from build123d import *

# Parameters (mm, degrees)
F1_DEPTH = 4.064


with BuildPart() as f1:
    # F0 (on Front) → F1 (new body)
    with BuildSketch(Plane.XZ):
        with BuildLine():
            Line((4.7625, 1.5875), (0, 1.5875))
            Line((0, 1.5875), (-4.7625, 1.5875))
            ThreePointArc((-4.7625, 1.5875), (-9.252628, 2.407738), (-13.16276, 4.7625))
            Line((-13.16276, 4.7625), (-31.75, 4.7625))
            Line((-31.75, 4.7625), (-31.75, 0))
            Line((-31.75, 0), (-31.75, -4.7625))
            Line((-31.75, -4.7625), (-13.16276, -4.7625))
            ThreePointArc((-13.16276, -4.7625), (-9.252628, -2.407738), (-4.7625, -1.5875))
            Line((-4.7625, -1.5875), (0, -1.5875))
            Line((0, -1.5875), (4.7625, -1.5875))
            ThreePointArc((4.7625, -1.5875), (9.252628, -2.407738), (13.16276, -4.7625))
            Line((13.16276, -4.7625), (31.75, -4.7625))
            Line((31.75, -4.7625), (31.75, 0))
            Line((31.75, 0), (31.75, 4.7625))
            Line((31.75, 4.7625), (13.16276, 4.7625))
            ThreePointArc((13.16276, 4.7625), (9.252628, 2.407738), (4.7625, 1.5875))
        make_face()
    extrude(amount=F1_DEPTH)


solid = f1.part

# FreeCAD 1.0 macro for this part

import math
import FreeCAD as App
import Part
import Sketcher
Q = App.Units.Quantity

doc = App.newDocument("Part")
body = doc.addObject("PartDesign::Body", "Body")

# Sketch on XZ plane
sketch1 = doc.addObject("Sketcher::SketchObject", "Sketch")
body.addObject(sketch1)
sketch1.AttachmentSupport = (doc.XZ_Plane, [""])
sketch1.MapMode = "FlatFace"
sketch1.addGeometry([
    Part.LineSegment(App.Vector(5, 2, 0), App.Vector(-5, 2, 0)),  # 0
    Part.ArcOfCircle(Part.Circle(App.Vector(-5, 14, 0), App.Vector(0, 0, 1), 13), math.radians(-131), math.radians(-90)),  # 1
    Part.LineSegment(App.Vector(-13, 5, 0), App.Vector(-32, 5, 0)),  # 2
    Part.LineSegment(App.Vector(-32, 5, 0), App.Vector(-32, -5, 0)),  # 3
    Part.LineSegment(App.Vector(-32, -5, 0), App.Vector(-13, -5, 0)),  # 4
    Part.ArcOfCircle(Part.Circle(App.Vector(-5, -14, 0), App.Vector(0, 0, 1), 13), math.radians(90), math.radians(131)),  # 5
    Part.LineSegment(App.Vector(-5, -2, 0), App.Vector(5, -2, 0)),  # 6
    Part.ArcOfCircle(Part.Circle(App.Vector(5, -14, 0), App.Vector(0, 0, 1), 13), math.radians(49), math.radians(90)),  # 7
    Part.LineSegment(App.Vector(13, -5, 0), App.Vector(32, -5, 0)),  # 8
    Part.LineSegment(App.Vector(32, -5, 0), App.Vector(32, 5, 0)),  # 9
    Part.LineSegment(App.Vector(32, 5, 0), App.Vector(13, 5, 0)),  # 10
    Part.ArcOfCircle(Part.Circle(App.Vector(5, 14, 0), App.Vector(0, 0, 1), 13), math.radians(-90), math.radians(-49)),  # 11
], False)
sketch1.addConstraint([
    Sketcher.Constraint("Tangent", 0, 2, 1, 2),
    Sketcher.Constraint("Coincident", 1, 1, 2, 1),
    Sketcher.Constraint("Coincident", 2, 2, 3, 1),
    Sketcher.Constraint("Coincident", 3, 2, 4, 1),
    Sketcher.Constraint("Coincident", 4, 2, 5, 2),
    Sketcher.Constraint("Tangent", 5, 1, 6, 1),
    Sketcher.Constraint("Tangent", 6, 2, 7, 2),
    Sketcher.Constraint("Coincident", 7, 1, 8, 1),
    Sketcher.Constraint("Coincident", 8, 2, 9, 1),
    Sketcher.Constraint("Coincident", 9, 2, 10, 1),
    Sketcher.Constraint("Coincident", 10, 2, 11, 2),
    Sketcher.Constraint("Tangent", 11, 1, 0, 1),
    Sketcher.Constraint("Horizontal", 0),
    Sketcher.Constraint("Horizontal", 2),
    Sketcher.Constraint("Vertical", 3),
    Sketcher.Constraint("Horizontal", 4),
    Sketcher.Constraint("Horizontal", 6),
    Sketcher.Constraint("Horizontal", 8),
    Sketcher.Constraint("Vertical", 9),
    Sketcher.Constraint("Horizontal", 10),
    Sketcher.Constraint("Equal", 1, 5),
    Sketcher.Constraint("Equal", 5, 7),
    Sketcher.Constraint("Equal", 7, 11),
    Sketcher.Constraint("Symmetric", 1, 3, 7, 3, -1, 1),
    Sketcher.Constraint("Symmetric", 2, 2, 8, 2, -1, 1),
    Sketcher.Constraint("Symmetric", 4, 2, 10, 2, -1, 1),
    Sketcher.Constraint("Symmetric", 4, 2, 7, 1, -2),
    Sketcher.Constraint("Equal", 6, 3),
    Sketcher.Constraint("Radius", 1, Q("0.5 in")),
    Sketcher.Constraint("DistanceX", 0, 2, 0, 1, Q("0.375 in")),
    Sketcher.Constraint("DistanceX", 2, 2, -1, 1, Q("1.25 in")),
    Sketcher.Constraint("DistanceY", 5, 3, 1, 1, Q("0.75 in")),
])
pad1 = doc.addObject("PartDesign::Pad", "Pad")
body.addObject(pad1)
pad1.Profile = sketch1
pad1.Length = Q("0.16 in")

doc.recompute()
